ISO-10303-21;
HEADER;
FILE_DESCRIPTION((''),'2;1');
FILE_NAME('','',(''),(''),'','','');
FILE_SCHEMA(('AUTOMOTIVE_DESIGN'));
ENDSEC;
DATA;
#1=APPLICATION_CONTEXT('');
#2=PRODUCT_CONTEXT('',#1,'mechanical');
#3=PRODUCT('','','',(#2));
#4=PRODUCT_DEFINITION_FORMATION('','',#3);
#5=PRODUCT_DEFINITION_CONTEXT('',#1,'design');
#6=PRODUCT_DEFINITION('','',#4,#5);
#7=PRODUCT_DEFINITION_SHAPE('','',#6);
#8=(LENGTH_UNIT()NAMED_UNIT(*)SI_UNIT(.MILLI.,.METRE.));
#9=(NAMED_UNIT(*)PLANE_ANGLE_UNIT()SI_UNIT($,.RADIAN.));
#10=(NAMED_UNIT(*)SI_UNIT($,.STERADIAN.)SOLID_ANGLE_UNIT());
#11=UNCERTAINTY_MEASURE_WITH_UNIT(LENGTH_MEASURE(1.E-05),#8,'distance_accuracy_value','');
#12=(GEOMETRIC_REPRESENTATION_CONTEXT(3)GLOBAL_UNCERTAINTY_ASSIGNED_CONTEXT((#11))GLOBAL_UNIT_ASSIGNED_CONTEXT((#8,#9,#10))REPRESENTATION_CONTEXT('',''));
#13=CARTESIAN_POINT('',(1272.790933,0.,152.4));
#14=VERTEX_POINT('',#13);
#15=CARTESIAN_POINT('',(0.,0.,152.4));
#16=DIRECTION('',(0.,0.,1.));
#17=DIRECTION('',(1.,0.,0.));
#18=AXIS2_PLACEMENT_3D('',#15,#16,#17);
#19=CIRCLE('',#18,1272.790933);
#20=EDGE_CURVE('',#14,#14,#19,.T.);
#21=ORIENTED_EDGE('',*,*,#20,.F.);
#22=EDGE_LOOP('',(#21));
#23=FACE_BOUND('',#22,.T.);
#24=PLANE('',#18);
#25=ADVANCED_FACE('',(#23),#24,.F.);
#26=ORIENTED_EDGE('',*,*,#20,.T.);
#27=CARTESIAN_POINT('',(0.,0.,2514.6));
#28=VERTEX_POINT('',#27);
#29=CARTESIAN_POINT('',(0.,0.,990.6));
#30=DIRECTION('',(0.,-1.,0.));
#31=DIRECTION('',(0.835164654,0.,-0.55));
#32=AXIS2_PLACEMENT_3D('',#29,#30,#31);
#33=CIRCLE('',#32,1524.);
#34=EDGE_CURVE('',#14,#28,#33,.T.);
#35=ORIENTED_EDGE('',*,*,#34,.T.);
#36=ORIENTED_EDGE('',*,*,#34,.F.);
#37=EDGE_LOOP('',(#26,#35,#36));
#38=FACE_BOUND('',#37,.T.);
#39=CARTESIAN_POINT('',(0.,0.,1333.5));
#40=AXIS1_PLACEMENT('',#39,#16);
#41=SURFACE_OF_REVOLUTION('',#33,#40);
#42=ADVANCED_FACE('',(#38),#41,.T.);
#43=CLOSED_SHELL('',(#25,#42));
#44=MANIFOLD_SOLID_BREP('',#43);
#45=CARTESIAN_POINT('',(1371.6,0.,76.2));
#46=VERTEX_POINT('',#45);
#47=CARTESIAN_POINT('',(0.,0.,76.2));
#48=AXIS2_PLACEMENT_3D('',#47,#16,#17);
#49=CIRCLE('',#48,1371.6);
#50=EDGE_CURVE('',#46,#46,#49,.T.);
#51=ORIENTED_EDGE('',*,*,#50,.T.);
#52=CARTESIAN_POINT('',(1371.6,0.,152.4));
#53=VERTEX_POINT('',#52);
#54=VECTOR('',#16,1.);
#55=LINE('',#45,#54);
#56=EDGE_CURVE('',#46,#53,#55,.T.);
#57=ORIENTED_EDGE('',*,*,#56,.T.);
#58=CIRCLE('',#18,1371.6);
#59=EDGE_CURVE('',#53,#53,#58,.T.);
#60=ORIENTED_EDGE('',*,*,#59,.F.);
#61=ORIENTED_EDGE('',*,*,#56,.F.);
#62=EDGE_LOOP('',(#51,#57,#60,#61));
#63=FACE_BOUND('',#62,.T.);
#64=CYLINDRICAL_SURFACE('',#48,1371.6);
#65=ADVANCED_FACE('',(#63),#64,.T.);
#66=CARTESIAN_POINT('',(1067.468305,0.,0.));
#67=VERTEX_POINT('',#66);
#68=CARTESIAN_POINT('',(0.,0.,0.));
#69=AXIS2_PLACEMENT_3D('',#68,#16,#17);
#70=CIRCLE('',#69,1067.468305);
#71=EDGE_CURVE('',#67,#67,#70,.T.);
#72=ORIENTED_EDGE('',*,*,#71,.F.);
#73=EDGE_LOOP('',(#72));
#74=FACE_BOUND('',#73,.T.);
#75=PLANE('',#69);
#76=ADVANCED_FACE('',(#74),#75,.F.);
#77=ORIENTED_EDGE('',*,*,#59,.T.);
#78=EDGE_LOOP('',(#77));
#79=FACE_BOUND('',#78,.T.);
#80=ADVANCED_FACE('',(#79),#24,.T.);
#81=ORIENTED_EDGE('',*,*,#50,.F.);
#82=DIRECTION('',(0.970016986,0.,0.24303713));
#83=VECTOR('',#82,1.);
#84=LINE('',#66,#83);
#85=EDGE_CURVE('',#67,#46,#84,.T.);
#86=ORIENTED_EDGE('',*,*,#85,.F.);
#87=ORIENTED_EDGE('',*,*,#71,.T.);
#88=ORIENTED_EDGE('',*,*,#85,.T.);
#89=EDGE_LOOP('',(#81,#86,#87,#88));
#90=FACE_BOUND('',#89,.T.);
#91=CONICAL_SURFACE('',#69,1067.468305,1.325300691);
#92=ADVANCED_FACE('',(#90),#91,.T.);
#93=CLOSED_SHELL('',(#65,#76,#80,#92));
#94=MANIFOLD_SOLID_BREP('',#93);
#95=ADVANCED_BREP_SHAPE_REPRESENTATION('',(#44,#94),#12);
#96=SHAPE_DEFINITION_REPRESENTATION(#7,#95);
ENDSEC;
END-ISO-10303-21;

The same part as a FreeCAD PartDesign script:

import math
import FreeCAD as App
import Part
import Sketcher

V = App.Vector
Q = App.Units.Quantity


def add_polygon(sketch, points):
    """Adds a closed chain of lines whose ends are joined by coincident constraints."""
    first, n = sketch.GeometryCount, len(points)
    for a, b in zip(points, points[1:] + points[:1]):
        sketch.addGeometry(Part.LineSegment(App.Vector(*a, 0), App.Vector(*b, 0)), False)
    for i in range(n):
        sketch.addConstraint(Sketcher.Constraint("Coincident", first + i, 2, first + (i + 1) % n, 1))

doc = App.newDocument("Part")
body = doc.addObject("PartDesign::Body", "Body")

# Sketch on XZ plane
sketch1 = body.newObject("Sketcher::SketchObject", "Sketch")
sketch1.AttachmentSupport = (doc.getObject("XZ_Plane"), [""])
sketch1.MapMode = "FlatFace"
add_polygon(sketch1, [(0, 152.4), (0, 0), (1067.468305, 0), (1371.6, 76.2), (1371.6, 152.4)])  # lines 0-4
sketch1.addConstraint(Sketcher.Constraint("Vertical", 0))
sketch1.addConstraint(Sketcher.Constraint("Horizontal", 1))
sketch1.addConstraint(Sketcher.Constraint("Vertical", 3))
sketch1.addConstraint(Sketcher.Constraint("Horizontal", 4))
sketch1.addConstraint(Sketcher.Constraint("Coincident", 0, 2, -1, 1))
sketch1.addConstraint(Sketcher.Constraint("DistanceX", 4, 2, 4, 1, Q("54 in")))
sketch1.addConstraint(Sketcher.Constraint("DistanceY", 0, 2, 0, 1, Q("6 in")))
sketch1.addConstraint(Sketcher.Constraint("DistanceY", 3, 1, 3, 2, Q("3 in")))
sketch1.addConstraint(Sketcher.Constraint("Distance", 2, Q("313.532339 mm")))
revolution = body.newObject("PartDesign::Revolution", "Revolution")
revolution.Profile = sketch1
revolution.ReferenceAxis = (sketch1, ["V_Axis"])
revolution.Angle = 360
body2 = doc.addObject("PartDesign::Body", "Body001")

# Sketch on XZ plane
sketch2 = body2.newObject("Sketcher::SketchObject", "Sketch001")
sketch2.AttachmentSupport = (doc.getObject("XZ_Plane001"), [""])
sketch2.MapMode = "FlatFace"
sketch2.addGeometry(Part.LineSegment(V(0, 2514.6, 0), V(0, 152.4, 0)), False)
sketch2.addGeometry(Part.LineSegment(V(0, 152.4, 0), V(1272.790933, 152.4, 0)), False)
sketch2.addGeometry(Part.ArcOfCircle(Part.Circle(V(0, 990.6, 0), V(0, 0, 1), 1524), math.radians(-33.367013), math.radians(90)), False)
sketch2.addConstraint(Sketcher.Constraint("Coincident", 0, 2, 1, 1))
sketch2.addConstraint(Sketcher.Constraint("Coincident", 1, 2, 2, 1))
sketch2.addConstraint(Sketcher.Constraint("Coincident", 2, 2, 0, 1))
sketch2.addConstraint(Sketcher.Constraint("Vertical", 0))
sketch2.addConstraint(Sketcher.Constraint("Horizontal", 1))
sketch2.addConstraint(Sketcher.Constraint("PointOnObject", 2, 3, -2))
sketch2.addConstraint(Sketcher.Constraint("PointOnObject", 0, 2, -2))
sketch2.addConstraint(Sketcher.Constraint("Radius", 2, Q("60 in")))
sketch2.addConstraint(Sketcher.Constraint("DistanceY", 0, 2, 0, 1, Q("93 in")))
sketch2.addConstraint(Sketcher.Constraint("DistanceY", -1, 1, 2, 3, Q("39 in")))
revolution2 = body2.newObject("PartDesign::Revolution", "Revolution001")
revolution2.Profile = sketch2
revolution2.ReferenceAxis = (sketch2, ["V_Axis"])
revolution2.Angle = 360

doc.recompute()
